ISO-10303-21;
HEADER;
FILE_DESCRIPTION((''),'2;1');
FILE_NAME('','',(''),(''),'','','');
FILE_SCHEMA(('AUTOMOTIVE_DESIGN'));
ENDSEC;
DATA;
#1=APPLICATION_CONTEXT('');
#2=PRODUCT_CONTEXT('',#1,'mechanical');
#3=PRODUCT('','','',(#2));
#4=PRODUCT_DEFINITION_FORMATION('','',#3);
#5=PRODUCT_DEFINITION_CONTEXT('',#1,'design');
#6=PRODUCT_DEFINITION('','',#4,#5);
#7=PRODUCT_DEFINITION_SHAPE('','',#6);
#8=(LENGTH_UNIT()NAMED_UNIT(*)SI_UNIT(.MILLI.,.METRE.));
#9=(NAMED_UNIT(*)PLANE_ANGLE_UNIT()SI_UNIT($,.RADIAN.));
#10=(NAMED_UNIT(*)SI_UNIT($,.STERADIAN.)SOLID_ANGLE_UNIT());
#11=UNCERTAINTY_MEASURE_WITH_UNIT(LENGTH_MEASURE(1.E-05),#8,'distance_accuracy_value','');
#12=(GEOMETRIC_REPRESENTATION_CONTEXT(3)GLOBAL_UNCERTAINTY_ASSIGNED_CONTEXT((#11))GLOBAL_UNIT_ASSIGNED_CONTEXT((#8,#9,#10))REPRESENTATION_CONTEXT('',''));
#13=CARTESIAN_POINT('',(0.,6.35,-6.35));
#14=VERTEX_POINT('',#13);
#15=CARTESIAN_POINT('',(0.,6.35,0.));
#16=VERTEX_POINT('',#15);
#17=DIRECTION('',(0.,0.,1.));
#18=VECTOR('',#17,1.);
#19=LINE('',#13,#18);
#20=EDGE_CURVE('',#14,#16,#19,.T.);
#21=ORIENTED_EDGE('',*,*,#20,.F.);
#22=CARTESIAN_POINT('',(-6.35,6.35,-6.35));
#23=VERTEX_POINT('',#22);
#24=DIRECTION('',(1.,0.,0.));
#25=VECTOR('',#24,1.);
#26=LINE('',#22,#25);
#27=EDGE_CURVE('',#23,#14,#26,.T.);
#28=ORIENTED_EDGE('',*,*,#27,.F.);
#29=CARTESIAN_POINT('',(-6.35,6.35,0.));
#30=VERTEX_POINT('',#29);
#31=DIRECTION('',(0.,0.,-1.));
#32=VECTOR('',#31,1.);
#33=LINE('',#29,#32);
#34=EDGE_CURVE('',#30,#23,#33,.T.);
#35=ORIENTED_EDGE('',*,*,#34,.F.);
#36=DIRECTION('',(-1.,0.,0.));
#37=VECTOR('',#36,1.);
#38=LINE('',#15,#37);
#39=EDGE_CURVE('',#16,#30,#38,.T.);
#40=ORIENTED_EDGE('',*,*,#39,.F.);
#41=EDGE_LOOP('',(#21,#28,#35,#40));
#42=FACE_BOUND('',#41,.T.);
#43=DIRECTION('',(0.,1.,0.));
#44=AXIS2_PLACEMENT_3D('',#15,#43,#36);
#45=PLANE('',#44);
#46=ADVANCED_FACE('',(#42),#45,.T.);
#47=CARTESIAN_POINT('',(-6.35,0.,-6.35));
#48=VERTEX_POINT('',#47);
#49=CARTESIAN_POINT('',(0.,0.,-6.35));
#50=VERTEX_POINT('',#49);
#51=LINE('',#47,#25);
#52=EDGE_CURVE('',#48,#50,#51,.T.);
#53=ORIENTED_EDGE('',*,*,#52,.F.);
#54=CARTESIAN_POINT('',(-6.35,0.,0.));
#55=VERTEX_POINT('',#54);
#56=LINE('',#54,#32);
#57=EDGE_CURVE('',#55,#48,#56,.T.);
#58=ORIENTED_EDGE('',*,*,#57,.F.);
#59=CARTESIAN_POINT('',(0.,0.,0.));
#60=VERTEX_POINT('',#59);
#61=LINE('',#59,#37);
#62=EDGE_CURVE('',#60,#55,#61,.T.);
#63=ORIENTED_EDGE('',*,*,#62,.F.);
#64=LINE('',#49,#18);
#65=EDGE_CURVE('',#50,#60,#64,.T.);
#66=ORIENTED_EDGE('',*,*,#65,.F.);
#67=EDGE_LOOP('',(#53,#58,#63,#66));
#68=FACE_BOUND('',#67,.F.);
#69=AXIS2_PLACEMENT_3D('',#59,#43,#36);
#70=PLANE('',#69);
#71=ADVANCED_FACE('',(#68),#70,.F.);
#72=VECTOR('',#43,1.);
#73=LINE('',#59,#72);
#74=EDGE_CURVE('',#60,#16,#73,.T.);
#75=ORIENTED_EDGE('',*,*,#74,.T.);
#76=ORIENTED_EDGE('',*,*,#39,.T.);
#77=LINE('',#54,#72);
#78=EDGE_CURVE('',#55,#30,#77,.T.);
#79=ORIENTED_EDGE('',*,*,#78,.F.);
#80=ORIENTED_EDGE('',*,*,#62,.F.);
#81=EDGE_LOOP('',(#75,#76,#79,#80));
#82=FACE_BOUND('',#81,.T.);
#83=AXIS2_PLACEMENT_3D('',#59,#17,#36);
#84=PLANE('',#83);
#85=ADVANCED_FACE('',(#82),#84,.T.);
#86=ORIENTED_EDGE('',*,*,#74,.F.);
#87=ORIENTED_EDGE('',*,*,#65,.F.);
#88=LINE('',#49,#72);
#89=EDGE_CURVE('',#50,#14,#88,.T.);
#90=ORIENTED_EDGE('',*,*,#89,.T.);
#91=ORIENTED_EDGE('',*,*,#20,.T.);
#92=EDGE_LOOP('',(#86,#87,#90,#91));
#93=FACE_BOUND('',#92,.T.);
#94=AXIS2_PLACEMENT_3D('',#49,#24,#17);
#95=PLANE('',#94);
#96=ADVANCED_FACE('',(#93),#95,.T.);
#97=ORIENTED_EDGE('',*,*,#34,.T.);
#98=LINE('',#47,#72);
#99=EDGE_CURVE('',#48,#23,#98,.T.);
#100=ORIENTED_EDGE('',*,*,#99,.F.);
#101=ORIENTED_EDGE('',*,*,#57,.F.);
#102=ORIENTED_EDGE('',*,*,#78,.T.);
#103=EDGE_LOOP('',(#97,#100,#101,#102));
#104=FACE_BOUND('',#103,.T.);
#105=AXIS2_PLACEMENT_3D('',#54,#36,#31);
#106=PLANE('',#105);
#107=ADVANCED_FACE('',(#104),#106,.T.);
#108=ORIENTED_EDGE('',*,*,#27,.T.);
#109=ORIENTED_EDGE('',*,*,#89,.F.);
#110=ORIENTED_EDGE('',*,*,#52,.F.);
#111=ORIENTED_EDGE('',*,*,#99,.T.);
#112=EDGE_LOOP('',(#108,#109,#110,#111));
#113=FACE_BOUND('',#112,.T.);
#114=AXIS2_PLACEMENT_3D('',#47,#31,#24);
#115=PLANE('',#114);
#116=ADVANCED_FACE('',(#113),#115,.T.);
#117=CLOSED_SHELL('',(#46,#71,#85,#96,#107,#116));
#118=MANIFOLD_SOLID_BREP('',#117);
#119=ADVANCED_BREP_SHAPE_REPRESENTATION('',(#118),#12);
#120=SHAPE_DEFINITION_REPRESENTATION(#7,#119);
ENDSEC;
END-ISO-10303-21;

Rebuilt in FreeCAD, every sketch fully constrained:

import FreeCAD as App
import Part
import Sketcher
from FreeCAD import Vector
Q = App.Units.Quantity

doc = App.newDocument("Part")
params = doc.addObject("Spreadsheet::Sheet", "Params")
for row, (alias, value) in enumerate([
    ("sketch1_width", "0.25 in"),
    ("pad1_length", "0.25 in"),
], start=1):
    params.set(f"A{row}", alias)
    params.set(f"B{row}", "=" + value)
    params.setAlias(f"B{row}", alias)

body = doc.addObject("PartDesign::Body", "Body")

# Sketch on XZ plane
sketch1 = body.newObject("Sketcher::SketchObject", "Sketch")
sketch1.AttachmentSupport = (doc.getObject("XZ_Plane"), [""])
sketch1.MapMode = "FlatFace"
sketch1.addGeometry([
    Part.LineSegment(Vector(-6.35, 0, 0), Vector(0, 0, 0)),
    Part.LineSegment(Vector(0, 0, 0), Vector(0, -6.35, 0)),
    Part.LineSegment(Vector(0, -6.35, 0), Vector(-6.35, -6.35, 0)),
    Part.LineSegment(Vector(-6.35, -6.35, 0), Vector(-6.35, 0, 0)),
], False)
sketch1.addConstraint([
    Sketcher.Constraint("Coincident", 0, 2, 1, 1),
    Sketcher.Constraint("Coincident", 1, 2, 2, 1),
    Sketcher.Constraint("Coincident", 2, 2, 3, 1),
    Sketcher.Constraint("Coincident", 3, 2, 0, 1),
    Sketcher.Constraint("Horizontal", 0),
    Sketcher.Constraint("Vertical", 1),
    Sketcher.Constraint("Horizontal", 2),
    Sketcher.Constraint("Vertical", 3),
    Sketcher.Constraint("Coincident", 0, 2, -1, 1),
    Sketcher.Constraint("Equal", 2, 1),
    Sketcher.Constraint("DistanceX", 0, 1, 0, 2, Q("0.25 in")),
])
sketch1.setExpression("Constraints[10]", "Params.sketch1_width")
pad1 = body.newObject("PartDesign::Pad", "Pad")
pad1.Profile = sketch1
pad1.setExpression("Length", "Params.pad1_length")
pad1.Reversed = True

doc.recompute()
